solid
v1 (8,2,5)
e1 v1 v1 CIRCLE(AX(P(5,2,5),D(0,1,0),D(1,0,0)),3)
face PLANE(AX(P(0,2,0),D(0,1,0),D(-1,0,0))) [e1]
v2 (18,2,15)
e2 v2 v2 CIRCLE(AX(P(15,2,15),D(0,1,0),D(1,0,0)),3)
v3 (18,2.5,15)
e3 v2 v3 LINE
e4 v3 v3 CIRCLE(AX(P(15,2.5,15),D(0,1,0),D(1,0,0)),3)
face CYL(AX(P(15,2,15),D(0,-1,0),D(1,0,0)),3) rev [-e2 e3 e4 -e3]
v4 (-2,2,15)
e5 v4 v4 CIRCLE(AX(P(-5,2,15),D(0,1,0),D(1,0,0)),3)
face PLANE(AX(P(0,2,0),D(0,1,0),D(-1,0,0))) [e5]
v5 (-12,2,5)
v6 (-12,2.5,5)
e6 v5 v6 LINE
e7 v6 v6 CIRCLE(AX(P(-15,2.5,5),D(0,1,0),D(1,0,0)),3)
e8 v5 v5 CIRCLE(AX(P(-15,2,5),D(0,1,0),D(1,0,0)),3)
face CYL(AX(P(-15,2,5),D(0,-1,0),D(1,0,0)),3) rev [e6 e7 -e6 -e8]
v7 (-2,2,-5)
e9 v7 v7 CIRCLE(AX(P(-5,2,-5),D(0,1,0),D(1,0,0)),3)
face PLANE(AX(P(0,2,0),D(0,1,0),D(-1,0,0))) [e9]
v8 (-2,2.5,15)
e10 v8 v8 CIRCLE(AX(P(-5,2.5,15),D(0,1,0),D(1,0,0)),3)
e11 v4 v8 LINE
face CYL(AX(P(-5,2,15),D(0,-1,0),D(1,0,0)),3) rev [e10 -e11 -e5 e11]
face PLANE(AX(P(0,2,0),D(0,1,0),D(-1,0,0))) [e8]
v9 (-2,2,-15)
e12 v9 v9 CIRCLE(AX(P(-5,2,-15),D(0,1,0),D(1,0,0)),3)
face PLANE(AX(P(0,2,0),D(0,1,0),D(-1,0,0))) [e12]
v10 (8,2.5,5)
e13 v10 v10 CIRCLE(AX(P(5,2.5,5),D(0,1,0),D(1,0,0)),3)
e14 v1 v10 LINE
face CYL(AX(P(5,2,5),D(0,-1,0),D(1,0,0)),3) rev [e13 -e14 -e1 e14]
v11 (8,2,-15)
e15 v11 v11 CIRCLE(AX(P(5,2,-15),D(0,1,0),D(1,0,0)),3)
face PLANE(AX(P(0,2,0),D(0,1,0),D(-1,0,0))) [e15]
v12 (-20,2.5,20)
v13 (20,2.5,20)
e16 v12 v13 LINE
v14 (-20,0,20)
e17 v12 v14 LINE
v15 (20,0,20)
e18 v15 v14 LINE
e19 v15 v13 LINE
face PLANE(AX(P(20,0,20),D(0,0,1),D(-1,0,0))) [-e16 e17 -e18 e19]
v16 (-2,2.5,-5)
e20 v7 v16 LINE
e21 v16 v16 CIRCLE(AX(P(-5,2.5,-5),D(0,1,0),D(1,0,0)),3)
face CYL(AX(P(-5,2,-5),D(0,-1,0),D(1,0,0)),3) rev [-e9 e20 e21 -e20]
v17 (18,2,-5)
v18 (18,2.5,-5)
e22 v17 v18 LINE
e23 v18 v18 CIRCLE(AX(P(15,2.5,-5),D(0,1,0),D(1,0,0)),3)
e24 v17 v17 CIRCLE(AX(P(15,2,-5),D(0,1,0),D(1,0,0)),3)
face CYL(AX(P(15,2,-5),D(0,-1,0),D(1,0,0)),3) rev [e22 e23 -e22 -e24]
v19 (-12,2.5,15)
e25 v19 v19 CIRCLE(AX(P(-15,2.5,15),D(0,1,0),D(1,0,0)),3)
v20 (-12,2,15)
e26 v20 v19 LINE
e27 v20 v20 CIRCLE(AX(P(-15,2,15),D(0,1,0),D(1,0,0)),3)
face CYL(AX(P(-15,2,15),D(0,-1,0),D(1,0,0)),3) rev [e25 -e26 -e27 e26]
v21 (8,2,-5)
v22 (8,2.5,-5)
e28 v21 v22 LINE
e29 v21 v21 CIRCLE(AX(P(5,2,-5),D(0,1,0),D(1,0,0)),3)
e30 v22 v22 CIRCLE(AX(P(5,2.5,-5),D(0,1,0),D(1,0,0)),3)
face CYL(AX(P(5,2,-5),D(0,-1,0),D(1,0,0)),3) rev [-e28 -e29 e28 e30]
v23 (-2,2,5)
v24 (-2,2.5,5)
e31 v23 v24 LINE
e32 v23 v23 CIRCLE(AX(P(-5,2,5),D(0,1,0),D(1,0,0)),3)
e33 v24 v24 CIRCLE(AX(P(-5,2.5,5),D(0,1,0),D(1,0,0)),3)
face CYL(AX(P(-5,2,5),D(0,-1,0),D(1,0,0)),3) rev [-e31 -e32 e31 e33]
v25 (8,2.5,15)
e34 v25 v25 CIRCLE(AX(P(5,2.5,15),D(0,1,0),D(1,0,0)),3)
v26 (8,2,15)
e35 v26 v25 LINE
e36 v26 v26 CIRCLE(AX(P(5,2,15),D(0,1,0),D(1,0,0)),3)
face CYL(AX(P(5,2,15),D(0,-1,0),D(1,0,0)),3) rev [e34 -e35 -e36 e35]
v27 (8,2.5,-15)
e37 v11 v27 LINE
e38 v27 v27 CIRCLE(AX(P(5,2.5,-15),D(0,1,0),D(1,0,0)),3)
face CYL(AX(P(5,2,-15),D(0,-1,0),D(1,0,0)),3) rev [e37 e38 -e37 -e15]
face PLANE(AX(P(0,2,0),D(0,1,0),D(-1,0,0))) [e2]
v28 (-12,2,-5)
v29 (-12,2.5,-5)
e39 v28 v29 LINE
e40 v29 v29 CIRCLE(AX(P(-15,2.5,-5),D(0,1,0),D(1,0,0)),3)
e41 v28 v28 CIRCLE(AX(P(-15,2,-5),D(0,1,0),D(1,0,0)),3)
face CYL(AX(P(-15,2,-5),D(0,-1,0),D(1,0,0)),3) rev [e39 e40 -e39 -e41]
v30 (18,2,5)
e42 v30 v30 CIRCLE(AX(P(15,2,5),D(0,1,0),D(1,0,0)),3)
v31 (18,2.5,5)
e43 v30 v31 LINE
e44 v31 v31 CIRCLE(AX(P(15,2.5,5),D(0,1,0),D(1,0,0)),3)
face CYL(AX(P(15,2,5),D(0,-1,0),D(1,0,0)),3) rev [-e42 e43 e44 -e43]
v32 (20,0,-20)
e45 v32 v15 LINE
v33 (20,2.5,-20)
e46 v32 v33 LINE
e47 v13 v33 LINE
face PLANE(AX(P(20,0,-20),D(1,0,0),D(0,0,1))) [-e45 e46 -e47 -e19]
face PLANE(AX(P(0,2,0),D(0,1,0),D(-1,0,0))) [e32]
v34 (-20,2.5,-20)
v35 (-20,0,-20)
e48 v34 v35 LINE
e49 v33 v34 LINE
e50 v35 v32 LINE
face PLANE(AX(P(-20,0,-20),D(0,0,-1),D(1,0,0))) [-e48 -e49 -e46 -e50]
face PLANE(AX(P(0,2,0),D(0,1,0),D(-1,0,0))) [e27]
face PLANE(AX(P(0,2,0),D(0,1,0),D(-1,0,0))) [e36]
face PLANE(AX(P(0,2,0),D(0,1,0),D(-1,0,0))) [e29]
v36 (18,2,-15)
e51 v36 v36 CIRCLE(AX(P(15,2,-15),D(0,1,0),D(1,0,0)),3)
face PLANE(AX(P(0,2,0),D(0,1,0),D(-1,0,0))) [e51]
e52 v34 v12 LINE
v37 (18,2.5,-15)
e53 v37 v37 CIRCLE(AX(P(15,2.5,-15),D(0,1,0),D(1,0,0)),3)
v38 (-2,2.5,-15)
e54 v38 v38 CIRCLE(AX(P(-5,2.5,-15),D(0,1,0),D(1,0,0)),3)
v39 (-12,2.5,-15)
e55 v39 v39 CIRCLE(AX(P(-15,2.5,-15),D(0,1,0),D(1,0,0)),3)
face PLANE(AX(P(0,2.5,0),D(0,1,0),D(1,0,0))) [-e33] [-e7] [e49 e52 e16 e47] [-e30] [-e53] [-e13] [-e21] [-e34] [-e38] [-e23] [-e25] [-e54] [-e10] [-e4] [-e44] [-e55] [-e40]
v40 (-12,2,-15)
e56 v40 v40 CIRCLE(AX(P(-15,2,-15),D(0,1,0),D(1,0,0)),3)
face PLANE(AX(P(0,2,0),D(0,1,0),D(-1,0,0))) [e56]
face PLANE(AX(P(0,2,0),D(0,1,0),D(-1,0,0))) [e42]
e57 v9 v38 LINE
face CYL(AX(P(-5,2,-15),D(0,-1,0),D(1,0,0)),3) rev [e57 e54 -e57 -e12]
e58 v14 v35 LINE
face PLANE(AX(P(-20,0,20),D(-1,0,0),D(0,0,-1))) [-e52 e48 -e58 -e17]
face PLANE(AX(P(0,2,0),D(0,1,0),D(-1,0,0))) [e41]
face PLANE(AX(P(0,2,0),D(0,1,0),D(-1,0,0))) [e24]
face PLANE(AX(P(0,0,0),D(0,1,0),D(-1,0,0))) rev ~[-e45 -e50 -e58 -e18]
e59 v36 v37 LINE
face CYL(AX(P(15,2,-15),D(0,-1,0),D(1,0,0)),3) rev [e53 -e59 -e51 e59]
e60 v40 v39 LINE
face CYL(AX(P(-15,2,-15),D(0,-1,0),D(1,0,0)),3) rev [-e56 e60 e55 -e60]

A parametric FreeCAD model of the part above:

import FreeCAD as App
import Part
import Sketcher

V = App.Vector
Q = App.Units.Quantity


def add_polygon(sketch, points):
    """Adds a closed chain of lines whose ends are joined by coincident constraints."""
    first, n = sketch.GeometryCount, len(points)
    for a, b in zip(points, points[1:] + points[:1]):
        sketch.addGeometry(Part.LineSegment(App.Vector(*a, 0), App.Vector(*b, 0)), False)
    for i in range(n):
        sketch.addConstraint(Sketcher.Constraint("Coincident", first + i, 2, first + (i + 1) % n, 1))

doc = App.newDocument("Part")
body = doc.addObject("PartDesign::Body", "Body")

# Sketch on XZ plane
sketch1 = doc.addObject("Sketcher::SketchObject", "Sketch")
body.addObject(sketch1)
sketch1.AttachmentSupport = (doc.XZ_Plane, [""])
sketch1.MapMode = "FlatFace"
add_polygon(sketch1, [(-20, 20), (20, 20), (20, -20), (-20, -20)])  # lines 0-3
sketch1.addConstraint([
    Sketcher.Constraint("Horizontal", 0),
    Sketcher.Constraint("Vertical", 1),
    Sketcher.Constraint("Horizontal", 2),
    Sketcher.Constraint("Vertical", 3),
    Sketcher.Constraint("Symmetric", 0, 2, 2, 2, -1, 1),
    Sketcher.Constraint("Equal", 2, 1),
    Sketcher.Constraint("DistanceX", 0, 1, 0, 2, Q("40 mm")),
])
pad1 = doc.addObject("PartDesign::Pad", "Pad")
body.addObject(pad1)
pad1.Profile = sketch1
pad1.Length = 2
pad1.Reversed = True

# Sketch on XZ plane
sketch2 = doc.addObject("Sketcher::SketchObject", "Sketch001")
body.addObject(sketch2)
sketch2.AttachmentSupport = (doc.XZ_Plane, [""])
sketch2.MapMode = "FlatFace"
sketch2.AttachmentOffset = App.Placement(V(0, 0, -2), App.Rotation())
add_polygon(sketch2, [(-20, -20), (-20, 20), (20, 20), (20, -20)])  # lines 0-3
sketch2.addGeometry(Part.Circle(V(-15, 15, 0), V(0, 0, 1), 3), False)  # 4
sketch2.addGeometry(Part.Circle(V(-5, 15, 0), V(0, 0, 1), 3), False)  # 5
sketch2.addGeometry(Part.Circle(V(-15, 5, 0), V(0, 0, 1), 3), False)  # 6
sketch2.addGeometry(Part.Circle(V(-5, 5, 0), V(0, 0, 1), 3), False)  # 7
sketch2.addGeometry(Part.Circle(V(5, 15, 0), V(0, 0, 1), 3), False)  # 8
sketch2.addGeometry(Part.Circle(V(15, 15, 0), V(0, 0, 1), 3), False)  # 9
sketch2.addGeometry(Part.Circle(V(5, 5, 0), V(0, 0, 1), 3), False)  # 10
sketch2.addGeometry(Part.Circle(V(15, 5, 0), V(0, 0, 1), 3), False)  # 11
sketch2.addGeometry(Part.Circle(V(-15, -5, 0), V(0, 0, 1), 3), False)  # 12
sketch2.addGeometry(Part.Circle(V(-5, -5, 0), V(0, 0, 1), 3), False)  # 13
sketch2.addGeometry(Part.Circle(V(-15, -15, 0), V(0, 0, 1), 3), False)  # 14
sketch2.addGeometry(Part.Circle(V(-5, -15, 0), V(0, 0, 1), 3), False)  # 15
sketch2.addGeometry(Part.Circle(V(5, -5, 0), V(0, 0, 1), 3), False)  # 16
sketch2.addGeometry(Part.Circle(V(15, -5, 0), V(0, 0, 1), 3), False)  # 17
sketch2.addGeometry(Part.Circle(V(5, -15, 0), V(0, 0, 1), 3), False)  # 18
sketch2.addGeometry(Part.Circle(V(15, -15, 0), V(0, 0, 1), 3), False)  # 19
sketch2.addConstraint([
    Sketcher.Constraint("Vertical", 0),
    Sketcher.Constraint("Horizontal", 1),
    Sketcher.Constraint("Vertical", 2),
    Sketcher.Constraint("Horizontal", 3),
    Sketcher.Constraint("Equal", 4, 5),
    Sketcher.Constraint("Equal", 5, 6),
    Sketcher.Constraint("Equal", 6, 7),
    Sketcher.Constraint("Equal", 7, 8),
    Sketcher.Constraint("Equal", 8, 9),
    Sketcher.Constraint("Equal", 9, 10),
    Sketcher.Constraint("Equal", 10, 11),
    Sketcher.Constraint("Equal", 11, 12),
    Sketcher.Constraint("Equal", 12, 13),
    Sketcher.Constraint("Equal", 13, 14),
    Sketcher.Constraint("Equal", 14, 15),
    Sketcher.Constraint("Equal", 15, 16),
    Sketcher.Constraint("Equal", 16, 17),
    Sketcher.Constraint("Equal", 17, 18),
    Sketcher.Constraint("Equal", 18, 19),
    Sketcher.Constraint("Symmetric", 11, 3, 12, 3, -1, 1),
    Sketcher.Constraint("Symmetric", 10, 3, 13, 3, -1, 1),
    Sketcher.Constraint("Symmetric", 9, 3, 14, 3, -1, 1),
    Sketcher.Constraint("Symmetric", 8, 3, 15, 3, -1, 1),
    Sketcher.Constraint("Symmetric", 7, 3, 16, 3, -1, 1),
    Sketcher.Constraint("Symmetric", 6, 3, 17, 3, -1, 1),
    Sketcher.Constraint("Symmetric", 5, 3, 18, 3, -1, 1),
    Sketcher.Constraint("Symmetric", 4, 3, 19, 3, -1, 1),
    Sketcher.Constraint("Symmetric", 0, 2, 2, 2, -1, 1),
    Sketcher.Constraint("Symmetric", 5, 3, 8, 3, -2),
    Sketcher.Constraint("Symmetric", 4, 3, 9, 3, -2),
    Sketcher.Constraint("Symmetric", 7, 3, 10, 3, -2),
    Sketcher.Constraint("Symmetric", 6, 3, 11, 3, -2),
    Sketcher.Constraint("Horizontal", 4, 3, 5, 3),
    Sketcher.Constraint("Horizontal", 6, 3, 7, 3),
    Sketcher.Constraint("Vertical", 4, 3, 6, 3),
    Sketcher.Constraint("Vertical", 5, 3, 7, 3),
    Sketcher.Constraint("Equal", 3, 0),
    Sketcher.Constraint("Diameter", 4, Q("6 mm")),
    Sketcher.Constraint("DistanceX", 5, 3, -1, 1, Q("5 mm")),
    Sketcher.Constraint("DistanceY", -1, 1, 6, 3, Q("5 mm")),
    Sketcher.Constraint("DistanceX", 4, 3, 5, 3, Q("10 mm")),
    Sketcher.Constraint("DistanceY", 6, 3, 4, 3, Q("10 mm")),
    Sketcher.Constraint("DistanceX", 0, 2, 4, 3, Q("5 mm")),
])
pad2 = doc.addObject("PartDesign::Pad", "Pad001")
body.addObject(pad2)
pad2.Profile = sketch2
pad2.Length = 0.5
pad2.Reversed = True

doc.recompute()
